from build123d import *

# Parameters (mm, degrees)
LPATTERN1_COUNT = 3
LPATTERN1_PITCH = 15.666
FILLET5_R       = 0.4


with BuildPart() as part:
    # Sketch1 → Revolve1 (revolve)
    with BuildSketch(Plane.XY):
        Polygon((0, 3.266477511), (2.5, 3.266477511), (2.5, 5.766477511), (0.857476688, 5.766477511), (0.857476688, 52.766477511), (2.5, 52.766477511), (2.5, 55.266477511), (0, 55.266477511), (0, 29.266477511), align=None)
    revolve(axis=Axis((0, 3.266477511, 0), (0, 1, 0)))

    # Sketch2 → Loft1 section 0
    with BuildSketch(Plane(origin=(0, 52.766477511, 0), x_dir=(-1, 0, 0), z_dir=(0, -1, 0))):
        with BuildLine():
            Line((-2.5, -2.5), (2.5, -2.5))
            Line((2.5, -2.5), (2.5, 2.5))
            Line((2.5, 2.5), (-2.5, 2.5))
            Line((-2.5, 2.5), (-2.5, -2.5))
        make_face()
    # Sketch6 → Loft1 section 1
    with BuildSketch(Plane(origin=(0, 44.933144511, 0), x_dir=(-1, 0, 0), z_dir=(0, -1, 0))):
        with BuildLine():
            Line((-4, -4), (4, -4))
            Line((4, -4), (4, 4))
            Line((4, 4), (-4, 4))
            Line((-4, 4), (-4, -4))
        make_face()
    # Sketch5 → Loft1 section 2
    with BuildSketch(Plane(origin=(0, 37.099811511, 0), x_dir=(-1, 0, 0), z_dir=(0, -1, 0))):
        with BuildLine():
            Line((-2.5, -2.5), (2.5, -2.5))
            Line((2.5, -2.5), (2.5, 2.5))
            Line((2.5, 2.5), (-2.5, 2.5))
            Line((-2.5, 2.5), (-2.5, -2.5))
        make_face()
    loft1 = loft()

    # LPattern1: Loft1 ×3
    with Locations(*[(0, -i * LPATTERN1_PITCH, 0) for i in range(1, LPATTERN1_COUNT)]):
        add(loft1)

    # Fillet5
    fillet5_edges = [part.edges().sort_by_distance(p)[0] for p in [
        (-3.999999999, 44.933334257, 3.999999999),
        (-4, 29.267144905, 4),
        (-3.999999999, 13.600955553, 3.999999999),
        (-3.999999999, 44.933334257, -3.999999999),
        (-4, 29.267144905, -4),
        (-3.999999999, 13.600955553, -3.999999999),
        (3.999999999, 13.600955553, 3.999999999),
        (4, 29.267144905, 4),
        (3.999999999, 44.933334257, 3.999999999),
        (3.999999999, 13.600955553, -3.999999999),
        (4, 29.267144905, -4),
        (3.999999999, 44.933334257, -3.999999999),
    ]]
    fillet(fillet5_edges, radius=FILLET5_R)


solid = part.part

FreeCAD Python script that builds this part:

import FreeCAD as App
import Part
import Sketcher

V = App.Vector
Q = App.Units.Quantity


def edges_at(feature, points):
    """Names of the edges that pass closest to the given points."""
    edges = feature.Shape.Edges
    near = lambda p: min(range(len(edges)), key=lambda i: edges[i].distToShape(Part.Vertex(*p))[0])
    return sorted({f"Edge{near(p) + 1}" for p in points})


def add_polygon(sketch, points):
    """Adds a closed chain of lines whose ends are joined by coincident constraints."""
    first, n = sketch.GeometryCount, len(points)
    for a, b in zip(points, points[1:] + points[:1]):
        sketch.addGeometry(Part.LineSegment(App.Vector(*a, 0), App.Vector(*b, 0)), False)
    for i in range(n):
        sketch.addConstraint(Sketcher.Constraint("Coincident", first + i, 2, first + (i + 1) % n, 1))

doc = App.newDocument("Part")
body = doc.addObject("PartDesign::Body", "Body")

sketch1 = doc.addObject("Sketcher::SketchObject", "Sketch")
body.addObject(sketch1)
sketch1.AttachmentSupport = (doc.XY_Plane, [""])
sketch1.MapMode = "FlatFace"
add_polygon(sketch1, [(0, 3.3), (2.5, 3.3), (2.5, 5.8), (0.9, 5.8), (0.9, 52.8), (2.5, 52.8), (2.5, 55.3), (0, 55.3)])
sketch1.addConstraint([
    Sketcher.Constraint("Horizontal", 0),
    Sketcher.Constraint("Vertical", 1),
    Sketcher.Constraint("Horizontal", 2),
    Sketcher.Constraint("Vertical", 3),
    Sketcher.Constraint("Horizontal", 4),
    Sketcher.Constraint("Vertical", 5),
    Sketcher.Constraint("Horizontal", 6),
    Sketcher.Constraint("Vertical", 7),
    Sketcher.Constraint("PointOnObject", 6, 2, -2),
    Sketcher.Constraint("Vertical", 1, 2, 4, 2),
    Sketcher.Constraint("Equal", 6, 1),
    Sketcher.Constraint("Equal", 1, 5),
    Sketcher.Constraint("DistanceY", 3, 1, 3, 2, Q("47 mm")),
    Sketcher.Constraint("DistanceY", 7, 2, 7, 1, Q("52 mm")),
    Sketcher.Constraint("DistanceX", 2, 2, 2, 1, Q("1.642523 mm")),
    Sketcher.Constraint("DistanceY", -1, 1, 0, 2, Q("3.266478 mm")),
])
revolution = doc.addObject("PartDesign::Revolution", "Revolution")
body.addObject(revolution)
revolution.Profile = sketch1
revolution.ReferenceAxis = (sketch1, ["V_Axis"])
revolution.Angle = 360

sketch2 = doc.addObject("Sketcher::SketchObject", "Sketch001")
body.addObject(sketch2)
sketch2.AttachmentSupport = (doc.XZ_Plane, [""])
sketch2.MapMode = "FlatFace"
sketch2.AttachmentOffset = App.Placement(V(0, 0, -52.766478), App.Rotation())
add_polygon(sketch2, [(2, 2), (-2, 2), (-2, -2), (2, -2)])
sketch2.addConstraint([
    Sketcher.Constraint("Horizontal", 0),
    Sketcher.Constraint("Vertical", 1),
    Sketcher.Constraint("Horizontal", 2),
    Sketcher.Constraint("Vertical", 3),
    Sketcher.Constraint("Symmetric", 0, 2, 2, 2, -1, 1),
    Sketcher.Constraint("Equal", 2, 1),
    Sketcher.Constraint("DistanceX", 0, 2, 0, 1, Q("5 mm")),
])

sketch3 = doc.addObject("Sketcher::SketchObject", "Sketch002")
body.addObject(sketch3)
sketch3.AttachmentSupport = (doc.XZ_Plane, [""])
sketch3.MapMode = "FlatFace"
sketch3.AttachmentOffset = App.Placement(V(0, 0, -44.933145), App.Rotation())
add_polygon(sketch3, [(4, 4), (-4, 4), (-4, -4), (4, -4)])
sketch3.addConstraint([
    Sketcher.Constraint("Horizontal", 0),
    Sketcher.Constraint("Vertical", 1),
    Sketcher.Constraint("Horizontal", 2),
    Sketcher.Constraint("Vertical", 3),
    Sketcher.Constraint("Symmetric", 0, 2, 2, 2, -1, 1),
    Sketcher.Constraint("Equal", 2, 1),
    Sketcher.Constraint("DistanceX", 0, 2, 0, 1, Q("8 mm")),
])

sketch4 = doc.addObject("Sketcher::SketchObject", "Sketch003")
body.addObject(sketch4)
sketch4.AttachmentSupport = (doc.XZ_Plane, [""])
sketch4.MapMode = "FlatFace"
sketch4.AttachmentOffset = App.Placement(V(0, 0, -37.099812), App.Rotation())
add_polygon(sketch4, [(2, 2), (-2, 2), (-2, -2), (2, -2)])
sketch4.addConstraint([
    Sketcher.Constraint("Horizontal", 0),
    Sketcher.Constraint("Vertical", 1),
    Sketcher.Constraint("Horizontal", 2),
    Sketcher.Constraint("Vertical", 3),
    Sketcher.Constraint("Symmetric", 0, 2, 2, 2, -1, 1),
    Sketcher.Constraint("Equal", 2, 1),
    Sketcher.Constraint("DistanceX", 0, 2, 0, 1, Q("5 mm")),
])

additiveloft = doc.addObject("PartDesign::AdditiveLoft", "AdditiveLoft")
body.addObject(additiveloft)
additiveloft.Profile = sketch2
additiveloft.Sections = [sketch3, sketch4]
doc.recompute()

linearpattern = doc.addObject("PartDesign::LinearPattern", "LinearPattern")
body.addObject(linearpattern)
linearpattern.Originals = [additiveloft]
linearpattern.Direction = (doc.Y_Axis, [""])
linearpattern.Mode = "offset"
linearpattern.Offset = 15.666
linearpattern.Occurrences = 3
linearpattern.Reversed = True
body.Tip = linearpattern
doc.recompute()

fillet = doc.addObject("PartDesign::Fillet", "Fillet")
body.addObject(fillet)
fillet.Base = (linearpattern, edges_at(linearpattern, [
    (-4, 44.933, 4),
    (-4, 29.267, 4),
    (-4, 13.601, 4),
    (-4, 44.933, -4),
    (-4, 29.267, -4),
    (-4, 13.601, -4),
    (4, 13.601, 4),
    (4, 29.267, 4),
    (4, 44.933, 4),
    (4, 13.601, -4),
    (4, 29.267, -4),
    (4, 44.933, -4),
]))
fillet.Radius = 0.4

doc.recompute()
